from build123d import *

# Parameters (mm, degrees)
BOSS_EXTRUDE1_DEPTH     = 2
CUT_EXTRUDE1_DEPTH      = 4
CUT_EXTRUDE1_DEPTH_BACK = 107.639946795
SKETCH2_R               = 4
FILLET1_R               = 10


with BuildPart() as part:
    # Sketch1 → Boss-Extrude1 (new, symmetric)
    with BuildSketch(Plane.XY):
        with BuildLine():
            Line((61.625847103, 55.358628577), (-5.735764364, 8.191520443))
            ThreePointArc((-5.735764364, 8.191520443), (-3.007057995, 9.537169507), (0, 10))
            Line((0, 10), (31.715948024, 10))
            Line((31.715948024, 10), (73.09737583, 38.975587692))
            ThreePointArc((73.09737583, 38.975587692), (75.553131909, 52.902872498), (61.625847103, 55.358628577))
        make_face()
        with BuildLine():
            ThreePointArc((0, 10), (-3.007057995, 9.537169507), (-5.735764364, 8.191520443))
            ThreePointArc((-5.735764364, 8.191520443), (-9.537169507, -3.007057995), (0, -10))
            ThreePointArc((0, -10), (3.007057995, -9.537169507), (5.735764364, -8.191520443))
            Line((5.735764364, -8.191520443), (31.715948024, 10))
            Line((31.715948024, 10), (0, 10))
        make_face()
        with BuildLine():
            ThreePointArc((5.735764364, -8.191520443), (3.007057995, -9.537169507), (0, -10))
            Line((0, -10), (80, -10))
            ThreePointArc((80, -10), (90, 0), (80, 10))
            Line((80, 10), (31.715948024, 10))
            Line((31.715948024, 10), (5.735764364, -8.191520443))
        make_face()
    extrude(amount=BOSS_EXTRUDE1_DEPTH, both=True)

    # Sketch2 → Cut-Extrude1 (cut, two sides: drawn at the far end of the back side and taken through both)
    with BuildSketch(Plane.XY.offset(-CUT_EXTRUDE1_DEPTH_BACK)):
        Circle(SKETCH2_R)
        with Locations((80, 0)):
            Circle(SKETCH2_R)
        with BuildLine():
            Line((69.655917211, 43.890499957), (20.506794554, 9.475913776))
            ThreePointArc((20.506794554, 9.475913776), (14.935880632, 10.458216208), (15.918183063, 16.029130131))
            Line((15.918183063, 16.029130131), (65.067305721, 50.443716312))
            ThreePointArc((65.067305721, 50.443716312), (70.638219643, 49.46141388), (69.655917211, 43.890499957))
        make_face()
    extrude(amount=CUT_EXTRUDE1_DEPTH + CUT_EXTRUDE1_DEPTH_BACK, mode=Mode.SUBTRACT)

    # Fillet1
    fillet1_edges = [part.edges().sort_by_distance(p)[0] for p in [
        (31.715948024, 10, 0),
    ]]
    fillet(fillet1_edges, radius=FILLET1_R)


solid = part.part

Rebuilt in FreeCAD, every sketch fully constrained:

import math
import FreeCAD as App
import Part
import Sketcher

V = App.Vector
Q = App.Units.Quantity


def edges_at(feature, points):
    """Names of the edges that pass closest to the given points."""
    edges = feature.Shape.Edges
    near = lambda p: min(range(len(edges)), key=lambda i: edges[i].distToShape(Part.Vertex(*p))[0])
    return sorted({f"Edge{near(p) + 1}" for p in points})

doc = App.newDocument("Part")
body = doc.addObject("PartDesign::Body", "Body")

# Sketch on XY plane
sketch1 = body.newObject("Sketcher::SketchObject", "Sketch")
sketch1.AttachmentSupport = (doc.getObject("XY_Plane"), [""])
sketch1.MapMode = "FlatFace"
sketch1.addGeometry(Part.LineSegment(V(61.625847, 55.358629, 0), V(-5.735764, 8.19152, 0)), False)
sketch1.addGeometry(Part.ArcOfCircle(Part.Circle(V(0, 0, 0), V(0, 0, 1), 10), math.radians(125), math.radians(270)), False)
sketch1.addGeometry(Part.LineSegment(V(0, -10, 0), V(80, -10, 0)), False)
sketch1.addGeometry(Part.ArcOfCircle(Part.Circle(V(80, 0, 0), V(0, 0, 1), 10), math.radians(-90), math.radians(90)), False)
sketch1.addGeometry(Part.LineSegment(V(80, 10, 0), V(31.715948, 10, 0)), False)
sketch1.addGeometry(Part.LineSegment(V(31.715948, 10, 0), V(73.097376, 38.975588, 0)), False)
sketch1.addGeometry(Part.ArcOfCircle(Part.Circle(V(67.361611, 47.167108, 0), V(0, 0, 1), 10), math.radians(-55), math.radians(125)), False)
sketch1.addConstraint(Sketcher.Constraint("Tangent", 0, 2, 1, 1))
sketch1.addConstraint(Sketcher.Constraint("Tangent", 1, 2, 2, 1))
sketch1.addConstraint(Sketcher.Constraint("Tangent", 2, 2, 3, 1))
sketch1.addConstraint(Sketcher.Constraint("Tangent", 3, 2, 4, 1))
sketch1.addConstraint(Sketcher.Constraint("Coincident", 4, 2, 5, 1))
sketch1.addConstraint(Sketcher.Constraint("Tangent", 5, 2, 6, 1))
sketch1.addConstraint(Sketcher.Constraint("Tangent", 6, 2, 0, 1))
sketch1.addConstraint(Sketcher.Constraint("Horizontal", 2))
sketch1.addConstraint(Sketcher.Constraint("Horizontal", 4))
sketch1.addConstraint(Sketcher.Constraint("Coincident", 1, 3, -1, 1))
sketch1.addConstraint(Sketcher.Constraint("Equal", 1, 3))
sketch1.addConstraint(Sketcher.Constraint("Equal", 3, 6))
sketch1.addConstraint(Sketcher.Constraint("Parallel", 0, 5))
sketch1.addConstraint(Sketcher.Constraint("Radius", 1, Q("10 mm")))
sketch1.addConstraint(Sketcher.Constraint("DistanceX", 2, 1, 2, 2, Q("80 mm")))
sketch1.addConstraint(Sketcher.Constraint("Angle", 0, Q("-145 deg")))
sketch1.addConstraint(Sketcher.Constraint("DistanceX", 4, 2, 6, 2, Q("29.909899 mm")))
pad1 = body.newObject("PartDesign::Pad", "Pad")
pad1.Profile = sketch1
pad1.Length = 4
pad1.Midplane = True

# Sketch on XY plane
sketch2 = body.newObject("Sketcher::SketchObject", "Sketch001")
sketch2.AttachmentSupport = (doc.getObject("XY_Plane"), [""])
sketch2.MapMode = "FlatFace"
sketch2.addGeometry(Part.Circle(V(0, 0, 0), V(0, 0, 1), 4), False)
sketch2.addGeometry(Part.Circle(V(80, 0, 0), V(0, 0, 1), 4), False)
sketch2.addGeometry(Part.LineSegment(V(20.506795, 9.475914, 0), V(69.655917, 43.8905, 0)), False)
sketch2.addGeometry(Part.ArcOfCircle(Part.Circle(V(67.361611, 47.167108, 0), V(0, 0, 1), 4), math.radians(-55), math.radians(125)), False)
sketch2.addGeometry(Part.LineSegment(V(65.067306, 50.443716, 0), V(15.918183, 16.02913, 0)), False)
sketch2.addGeometry(Part.ArcOfCircle(Part.Circle(V(18.212489, 12.752522, 0), V(0, 0, 1), 4), math.radians(125), math.radians(305)), False)
sketch2.addConstraint(Sketcher.Constraint("Tangent", 2, 2, 3, 1))
sketch2.addConstraint(Sketcher.Constraint("Tangent", 3, 2, 4, 1))
sketch2.addConstraint(Sketcher.Constraint("Tangent", 4, 2, 5, 1))
sketch2.addConstraint(Sketcher.Constraint("Tangent", 5, 2, 2, 1))
sketch2.addConstraint(Sketcher.Constraint("Coincident", 0, 3, -1, 1))
sketch2.addConstraint(Sketcher.Constraint("Equal", 0, 1))
sketch2.addConstraint(Sketcher.Constraint("Equal", 1, 3))
sketch2.addConstraint(Sketcher.Constraint("Equal", 3, 5))
sketch2.addConstraint(Sketcher.Constraint("PointOnObject", 1, 3, -1))
sketch2.addConstraint(Sketcher.Constraint("Diameter", 0, Q("8 mm")))
sketch2.addConstraint(Sketcher.Constraint("Angle", 2, Q("35 deg")))
sketch2.addConstraint(Sketcher.Constraint("Distance", 2, Q("60 mm")))
sketch2.addConstraint(Sketcher.Constraint("DistanceX", -1, 1, 1, 3, Q("80 mm")))
sketch2.addConstraint(Sketcher.Constraint("DistanceY", -1, 1, 2, 2, Q("43.8905 mm")))
sketch2.addConstraint(Sketcher.Constraint("DistanceX", -1, 1, 3, 3, Q("67.361611 mm")))
pocket1 = body.newObject("PartDesign::Pocket", "Pocket")
pocket1.Profile = sketch2
pocket1.Type = "ThroughAll"
pocket1.Midplane = True
doc.recompute()

fillet = body.newObject("PartDesign::Fillet", "Fillet")
fillet.Base = (pocket1, edges_at(pocket1, [(31.716, 10, 0)]))
fillet.Radius = 10

doc.recompute()
